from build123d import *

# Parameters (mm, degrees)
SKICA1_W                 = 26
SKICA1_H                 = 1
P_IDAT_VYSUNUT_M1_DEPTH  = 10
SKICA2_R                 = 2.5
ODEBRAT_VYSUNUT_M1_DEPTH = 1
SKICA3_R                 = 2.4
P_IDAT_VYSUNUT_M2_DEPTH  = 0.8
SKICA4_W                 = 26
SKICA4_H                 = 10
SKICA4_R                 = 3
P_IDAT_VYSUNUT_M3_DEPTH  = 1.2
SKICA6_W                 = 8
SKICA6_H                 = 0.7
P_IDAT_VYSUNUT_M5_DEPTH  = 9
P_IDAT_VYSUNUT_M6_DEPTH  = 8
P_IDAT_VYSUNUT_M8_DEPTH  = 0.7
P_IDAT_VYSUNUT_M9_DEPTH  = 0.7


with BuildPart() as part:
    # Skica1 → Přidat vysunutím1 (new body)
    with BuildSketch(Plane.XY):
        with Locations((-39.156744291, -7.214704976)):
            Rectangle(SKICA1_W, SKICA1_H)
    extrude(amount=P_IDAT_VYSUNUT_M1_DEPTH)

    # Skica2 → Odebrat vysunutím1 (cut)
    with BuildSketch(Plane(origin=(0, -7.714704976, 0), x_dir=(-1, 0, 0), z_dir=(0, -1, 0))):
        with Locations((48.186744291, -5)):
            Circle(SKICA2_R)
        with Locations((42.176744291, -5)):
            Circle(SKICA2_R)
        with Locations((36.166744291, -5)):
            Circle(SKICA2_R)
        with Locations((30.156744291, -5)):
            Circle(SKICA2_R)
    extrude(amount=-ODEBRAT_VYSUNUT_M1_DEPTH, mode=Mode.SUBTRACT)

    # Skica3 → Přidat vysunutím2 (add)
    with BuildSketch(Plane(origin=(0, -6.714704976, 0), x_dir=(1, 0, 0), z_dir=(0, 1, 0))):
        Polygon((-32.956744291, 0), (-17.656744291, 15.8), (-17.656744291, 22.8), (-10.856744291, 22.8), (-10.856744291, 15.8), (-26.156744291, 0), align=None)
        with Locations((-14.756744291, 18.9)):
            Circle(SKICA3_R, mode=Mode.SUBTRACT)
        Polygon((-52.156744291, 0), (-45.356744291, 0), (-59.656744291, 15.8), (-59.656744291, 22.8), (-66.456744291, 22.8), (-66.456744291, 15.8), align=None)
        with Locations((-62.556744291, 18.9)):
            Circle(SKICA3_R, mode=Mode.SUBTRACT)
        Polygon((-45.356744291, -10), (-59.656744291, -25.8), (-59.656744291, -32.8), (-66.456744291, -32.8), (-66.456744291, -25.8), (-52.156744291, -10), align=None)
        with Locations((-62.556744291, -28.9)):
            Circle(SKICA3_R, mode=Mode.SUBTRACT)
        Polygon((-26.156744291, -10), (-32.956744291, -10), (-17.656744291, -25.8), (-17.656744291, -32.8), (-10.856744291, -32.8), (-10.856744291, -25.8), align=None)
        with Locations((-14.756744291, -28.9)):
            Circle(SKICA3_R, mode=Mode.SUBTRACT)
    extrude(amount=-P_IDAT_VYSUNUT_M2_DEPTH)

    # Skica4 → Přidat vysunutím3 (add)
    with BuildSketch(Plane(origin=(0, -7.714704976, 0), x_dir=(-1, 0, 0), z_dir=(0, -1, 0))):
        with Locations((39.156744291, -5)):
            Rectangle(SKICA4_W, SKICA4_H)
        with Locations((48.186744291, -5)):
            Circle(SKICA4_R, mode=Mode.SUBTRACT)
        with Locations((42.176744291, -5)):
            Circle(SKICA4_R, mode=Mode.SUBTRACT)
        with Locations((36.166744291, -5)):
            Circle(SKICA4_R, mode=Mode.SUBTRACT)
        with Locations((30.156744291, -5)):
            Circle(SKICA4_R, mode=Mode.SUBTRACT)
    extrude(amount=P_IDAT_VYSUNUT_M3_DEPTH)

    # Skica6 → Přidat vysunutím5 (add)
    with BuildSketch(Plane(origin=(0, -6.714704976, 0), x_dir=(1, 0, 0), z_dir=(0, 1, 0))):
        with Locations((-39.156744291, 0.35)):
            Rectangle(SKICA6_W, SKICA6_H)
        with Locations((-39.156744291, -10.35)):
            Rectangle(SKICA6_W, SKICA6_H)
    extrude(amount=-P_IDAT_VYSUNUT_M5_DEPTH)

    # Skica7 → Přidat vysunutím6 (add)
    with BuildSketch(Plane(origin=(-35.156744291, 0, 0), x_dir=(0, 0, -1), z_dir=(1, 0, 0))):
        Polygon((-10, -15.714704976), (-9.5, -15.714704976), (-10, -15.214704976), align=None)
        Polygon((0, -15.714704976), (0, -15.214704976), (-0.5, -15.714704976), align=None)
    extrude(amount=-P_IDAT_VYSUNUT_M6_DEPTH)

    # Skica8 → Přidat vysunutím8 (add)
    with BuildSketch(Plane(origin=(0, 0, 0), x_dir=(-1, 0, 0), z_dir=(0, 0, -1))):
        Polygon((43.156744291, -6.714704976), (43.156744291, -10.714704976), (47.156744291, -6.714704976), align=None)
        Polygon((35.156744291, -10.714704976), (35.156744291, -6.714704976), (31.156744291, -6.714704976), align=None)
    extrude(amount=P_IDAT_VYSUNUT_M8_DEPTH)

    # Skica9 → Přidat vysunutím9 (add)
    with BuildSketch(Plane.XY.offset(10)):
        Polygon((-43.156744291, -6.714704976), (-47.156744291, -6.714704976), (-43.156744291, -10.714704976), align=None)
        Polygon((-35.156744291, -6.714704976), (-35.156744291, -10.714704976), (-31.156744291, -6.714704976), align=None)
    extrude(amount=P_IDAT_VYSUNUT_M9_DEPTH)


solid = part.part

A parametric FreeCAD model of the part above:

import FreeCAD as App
import Part
import Sketcher
Q = App.Units.Quantity


def add_polygon(sketch, points):
    """Adds a closed chain of lines whose ends are joined by coincident constraints."""
    first, n = sketch.GeometryCount, len(points)
    for a, b in zip(points, points[1:] + points[:1]):
        sketch.addGeometry(Part.LineSegment(App.Vector(*a, 0), App.Vector(*b, 0)), False)
    for i in range(n):
        sketch.addConstraint(Sketcher.Constraint("Coincident", first + i, 2, first + (i + 1) % n, 1))

doc = App.newDocument("Part")
body = doc.addObject("PartDesign::Body", "Body")

sketch1 = doc.addObject("Sketcher::SketchObject", "Sketch")
body.addObject(sketch1)
sketch1.AttachmentSupport = (doc.XY_Plane, [""])
sketch1.MapMode = "FlatFace"
add_polygon(sketch1, [(-52.2, -6.7), (-52.2, -7.7), (-26.2, -7.7), (-26.2, -6.7)])
sketch1.addConstraint([
    Sketcher.Constraint("Vertical", 0),
    Sketcher.Constraint("Horizontal", 1),
    Sketcher.Constraint("Vertical", 2),
    Sketcher.Constraint("Horizontal", 3),
    Sketcher.Constraint("DistanceX", 1, 1, 1, 2, Q("26 mm")),
    Sketcher.Constraint("DistanceY", 0, 2, 0, 1, Q("1 mm")),
    Sketcher.Constraint("DistanceX", 0, 2, -1, 1, Q("52.156744 mm")),
    Sketcher.Constraint("DistanceY", 0, 2, -1, 1, Q("7.714705 mm")),
])
pad1 = doc.addObject("PartDesign::Pad", "Pad")
body.addObject(pad1)
pad1.Profile = sketch1
pad1.Length = 10

sketch2 = doc.addObject("Sketcher::SketchObject", "Sketch001")
body.addObject(sketch2)
sketch2.AttachmentSupport = (doc.XZ_Plane, [""])
sketch2.MapMode = "FlatFace"
sketch2.AttachmentOffset = App.Placement(App.Vector(0, 0, 7.714705), App.Rotation())
sketch2.addGeometry([
    Part.Circle(App.Vector(-48.2, 5, 0), App.Vector(0, 0, 1), 2.5),
    Part.Circle(App.Vector(-42.2, 5, 0), App.Vector(0, 0, 1), 2.5),
    Part.Circle(App.Vector(-36.2, 5, 0), App.Vector(0, 0, 1), 2.5),
    Part.Circle(App.Vector(-30.2, 5, 0), App.Vector(0, 0, 1), 2.5),
], False)
sketch2.addConstraint([
    Sketcher.Constraint("Equal", 0, 1),
    Sketcher.Constraint("Equal", 1, 2),
    Sketcher.Constraint("Equal", 2, 3),
    Sketcher.Constraint("Horizontal", 0, 3, 1, 3),
    Sketcher.Constraint("Horizontal", 1, 3, 2, 3),
    Sketcher.Constraint("Horizontal", 2, 3, 3, 3),
    Sketcher.Constraint("Diameter", 0, Q("5 mm")),
    Sketcher.Constraint("DistanceY", -1, 1, 0, 3, Q("5 mm")),
    Sketcher.Constraint("DistanceX", 0, 3, 1, 3, Q("6.01 mm")),
    Sketcher.Constraint("DistanceX", 1, 3, 2, 3, Q("6.01 mm")),
    Sketcher.Constraint("DistanceX", 2, 3, 3, 3, Q("6.01 mm")),
    Sketcher.Constraint("DistanceX", 0, 3, -1, 1, Q("48.186744 mm")),
])
pocket1 = doc.addObject("PartDesign::Pocket", "Pocket")
body.addObject(pocket1)
pocket1.Profile = sketch2
pocket1.Length = 1

sketch3 = doc.addObject("Sketcher::SketchObject", "Sketch002")
body.addObject(sketch3)
sketch3.AttachmentSupport = (doc.XZ_Plane, [""])
sketch3.MapMode = "FlatFace"
sketch3.AttachmentOffset = App.Placement(App.Vector(0, 0, 6.714705), App.Rotation())
add_polygon(sketch3, [(-17.7, -15.8), (-33, 0), (-26.2, 0), (-10.9, -15.8), (-10.9, -22.8), (-17.7, -22.8)])
sketch3.addGeometry(Part.Circle(App.Vector(-14.8, -18.9, 0), App.Vector(0, 0, 1), 2.4), False)
add_polygon(sketch3, [(-52.2, 0), (-45.4, 0), (-59.7, -15.8), (-59.7, -22.8), (-66.5, -22.8), (-66.5, -15.8)])
sketch3.addGeometry(Part.Circle(App.Vector(-62.6, -18.9, 0), App.Vector(0, 0, 1), 2.4), False)
add_polygon(sketch3, [(-59.7, 25.8), (-45.4, 10), (-52.2, 10), (-66.5, 25.8), (-66.5, 32.8), (-59.7, 32.8)])
sketch3.addGeometry(Part.Circle(App.Vector(-62.6, 28.9, 0), App.Vector(0, 0, 1), 2.4), False)
add_polygon(sketch3, [(-26.2, 10), (-33, 10), (-17.7, 25.8), (-17.7, 32.8), (-10.9, 32.8), (-10.9, 25.8)])
sketch3.addGeometry(Part.Circle(App.Vector(-14.8, 28.9, 0), App.Vector(0, 0, 1), 2.4), False)
sketch3.addConstraint([
    Sketcher.Constraint("Horizontal", 1),
    Sketcher.Constraint("Vertical", 3),
    Sketcher.Constraint("Horizontal", 4),
    Sketcher.Constraint("Vertical", 5),
    Sketcher.Constraint("Horizontal", 7),
    Sketcher.Constraint("Vertical", 9),
    Sketcher.Constraint("Horizontal", 10),
    Sketcher.Constraint("Vertical", 11),
    Sketcher.Constraint("Horizontal", 15),
    Sketcher.Constraint("Vertical", 17),
    Sketcher.Constraint("Horizontal", 18),
    Sketcher.Constraint("Vertical", 19),
    Sketcher.Constraint("Horizontal", 21),
    Sketcher.Constraint("Vertical", 23),
    Sketcher.Constraint("Horizontal", 24),
    Sketcher.Constraint("Vertical", 25),
    Sketcher.Constraint("Equal", 6, 13),
    Sketcher.Constraint("Equal", 13, 20),
    Sketcher.Constraint("Equal", 20, 27),
    Sketcher.Constraint("PointOnObject", 0, 2, -1),
    Sketcher.Constraint("PointOnObject", 7, 2, -1),
    Sketcher.Constraint("Parallel", 0, 2),
    Sketcher.Constraint("Parallel", 8, 12),
    Sketcher.Constraint("Parallel", 14, 16),
    Sketcher.Constraint("Parallel", 22, 26),
    Sketcher.Constraint("Horizontal", 6, 3, 13, 3),
    Sketcher.Constraint("Horizontal", 20, 3, 27, 3),
    Sketcher.Constraint("Horizontal", 2, 2, 5, 2),
    Sketcher.Constraint("Horizontal", 5, 2, 8, 2),
    Sketcher.Constraint("Horizontal", 4, 2, 9, 2),
    Sketcher.Constraint("Horizontal", 8, 2, 11, 2),
    Sketcher.Constraint("Horizontal", 16, 2, 19, 2),
    Sketcher.Constraint("Horizontal", 15, 2, 21, 2),
    Sketcher.Constraint("Horizontal", 19, 2, 22, 2),
    Sketcher.Constraint("Horizontal", 18, 2, 23, 2),
    Sketcher.Constraint("Horizontal", 22, 2, 25, 2),
    Sketcher.Constraint("Vertical", 13, 3, 20, 3),
    Sketcher.Constraint("Vertical", 6, 3, 27, 3),
    Sketcher.Constraint("Vertical", 7, 2, 14, 2),
    Sketcher.Constraint("Vertical", 12, 2, 15, 2),
    Sketcher.Constraint("Vertical", 11, 2, 16, 2),
    Sketcher.Constraint("Vertical", 0, 2, 21, 2),
    Sketcher.Constraint("Vertical", 5, 2, 22, 2),
    Sketcher.Constraint("Vertical", 3, 2, 24, 2),
    Sketcher.Constraint("Equal", 4, 7),
    Sketcher.Constraint("Equal", 11, 17),
    Sketcher.Constraint("Equal", 12, 14),
    Sketcher.Constraint("Diameter", 6, Q("4.8 mm")),
    Sketcher.Constraint("DistanceY", 3, 2, 3, 1, Q("7 mm")),
    Sketcher.Constraint("DistanceX", 1, 1, 1, 2, Q("6.8 mm")),
    Sketcher.Constraint("DistanceY", -1, 1, 14, 2, Q("10 mm")),
    Sketcher.Constraint("DistanceX", 8, 2, 5, 2, Q("42 mm")),
    Sketcher.Constraint("DistanceY", 6, 3, -1, 1, Q("18.9 mm")),
    Sketcher.Constraint("DistanceY", -1, 1, 20, 3, Q("28.9 mm")),
    Sketcher.Constraint("DistanceY", 2, 2, -1, 1, Q("15.8 mm")),
    Sketcher.Constraint("DistanceX", 13, 3, 6, 3, Q("47.8 mm")),
    Sketcher.Constraint("DistanceX", 0, 2, 6, 3, Q("18.2 mm")),
    Sketcher.Constraint("DistanceX", 6, 3, 2, 2, Q("3.9 mm")),
    Sketcher.Constraint("DistanceX", 7, 2, 0, 2, Q("12.4 mm")),
    Sketcher.Constraint("DistanceX", 6, 3, -1, 1, Q("14.756744 mm")),
])
pad2 = doc.addObject("PartDesign::Pad", "Pad001")
body.addObject(pad2)
pad2.Profile = sketch3
pad2.Length = 0.8

sketch4 = doc.addObject("Sketcher::SketchObject", "Sketch003")
body.addObject(sketch4)
sketch4.AttachmentSupport = (doc.XZ_Plane, [""])
sketch4.MapMode = "FlatFace"
sketch4.AttachmentOffset = App.Placement(App.Vector(0, 0, 7.714705), App.Rotation())
add_polygon(sketch4, [(-26.2, 0), (-26.2, 10), (-52.2, 10), (-52.2, 0)])
sketch4.addGeometry(Part.Circle(App.Vector(-30.2, 5, 0), App.Vector(0, 0, 1), 3), False)
sketch4.addGeometry(Part.Circle(App.Vector(-36.2, 5, 0), App.Vector(0, 0, 1), 3), False)
sketch4.addGeometry(Part.Circle(App.Vector(-42.2, 5, 0), App.Vector(0, 0, 1), 3), False)
sketch4.addGeometry(Part.Circle(App.Vector(-48.2, 5, 0), App.Vector(0, 0, 1), 3), False)
sketch4.addConstraint([
    Sketcher.Constraint("Vertical", 0),
    Sketcher.Constraint("Horizontal", 1),
    Sketcher.Constraint("Vertical", 2),
    Sketcher.Constraint("Horizontal", 3),
    Sketcher.Constraint("Equal", 4, 5),
    Sketcher.Constraint("Equal", 5, 6),
    Sketcher.Constraint("Equal", 6, 7),
    Sketcher.Constraint("PointOnObject", 2, 2, -1),
    Sketcher.Constraint("Horizontal", 4, 3, 5, 3),
    Sketcher.Constraint("Horizontal", 5, 3, 6, 3),
    Sketcher.Constraint("Horizontal", 6, 3, 7, 3),
    Sketcher.Constraint("Diameter", 4, Q("6 mm")),
    Sketcher.Constraint("DistanceX", 1, 2, 1, 1, Q("26 mm")),
    Sketcher.Constraint("DistanceY", 0, 1, 0, 2, Q("10 mm")),
    Sketcher.Constraint("DistanceY", -1, 1, 4, 3, Q("5 mm")),
    Sketcher.Constraint("DistanceX", 4, 3, 0, 2, Q("4 mm")),
    Sketcher.Constraint("DistanceX", 5, 3, 4, 3, Q("6.01 mm")),
    Sketcher.Constraint("DistanceX", 6, 3, 5, 3, Q("6.01 mm")),
    Sketcher.Constraint("DistanceX", 7, 3, 6, 3, Q("6.01 mm")),
    Sketcher.Constraint("DistanceX", 4, 3, -1, 1, Q("30.156744 mm")),
])
pad3 = doc.addObject("PartDesign::Pad", "Pad002")
body.addObject(pad3)
pad3.Profile = sketch4
pad3.Length = 1.2

sketch5 = doc.addObject("Sketcher::SketchObject", "Sketch004")
body.addObject(sketch5)
sketch5.AttachmentSupport = (doc.XZ_Plane, [""])
sketch5.MapMode = "FlatFace"
sketch5.AttachmentOffset = App.Placement(App.Vector(0, 0, 6.714705), App.Rotation())
add_polygon(sketch5, [(-43.2, -0.7), (-43.2, 0), (-35.2, 0), (-35.2, -0.7)])
add_polygon(sketch5, [(-43.2, 10), (-43.2, 10.7), (-35.2, 10.7), (-35.2, 10)])
sketch5.addConstraint([
    Sketcher.Constraint("Vertical", 0),
    Sketcher.Constraint("Horizontal", 1),
    Sketcher.Constraint("Vertical", 2),
    Sketcher.Constraint("Horizontal", 3),
    Sketcher.Constraint("Vertical", 4),
    Sketcher.Constraint("Horizontal", 5),
    Sketcher.Constraint("Vertical", 6),
    Sketcher.Constraint("Horizontal", 7),
    Sketcher.Constraint("PointOnObject", 0, 2, -1),
    Sketcher.Constraint("Vertical", 3, 2, 4, 2),
    Sketcher.Constraint("Vertical", 2, 2, 5, 2),
    Sketcher.Constraint("Equal", 2, 4),
    Sketcher.Constraint("DistanceX", 1, 1, 1, 2, Q("8 mm")),
    Sketcher.Constraint("DistanceY", 0, 1, 0, 2, Q("0.7 mm")),
    Sketcher.Constraint("DistanceY", -1, 1, 6, 2, Q("10 mm")),
    Sketcher.Constraint("DistanceX", 0, 2, -1, 1, Q("43.156744 mm")),
])
pad4 = doc.addObject("PartDesign::Pad", "Pad003")
body.addObject(pad4)
pad4.Profile = sketch5
pad4.Length = 9

sketch6 = doc.addObject("Sketcher::SketchObject", "Sketch005")
body.addObject(sketch6)
sketch6.AttachmentSupport = (doc.YZ_Plane, [""])
sketch6.MapMode = "FlatFace"
sketch6.AttachmentOffset = App.Placement(App.Vector(0, 0, -35.156744), App.Rotation())
add_polygon(sketch6, [(-15.7, 10), (-15.7, 9.5), (-15.2, 10)])
add_polygon(sketch6, [(-15.7, 0), (-15.2, 0), (-15.7, 0.5)])
sketch6.addConstraint([
    Sketcher.Constraint("Vertical", 0),
    Sketcher.Constraint("Horizontal", 2),
    Sketcher.Constraint("Horizontal", 3),
    Sketcher.Constraint("Vertical", 5),
    Sketcher.Constraint("PointOnObject", 3, 2, -1),
    Sketcher.Constraint("Perpendicular", 1, 4),
    Sketcher.Constraint("Vertical", 1, 2, 3, 2),
    Sketcher.Constraint("Vertical", 2, 2, 4, 2),
    Sketcher.Constraint("Equal", 3, 0),
    Sketcher.Constraint("DistanceX", 2, 2, 2, 1, Q("0.5 mm")),
    Sketcher.Constraint("DistanceY", -1, 1, 1, 2, Q("10 mm")),
    Sketcher.Constraint("DistanceX", 0, 2, -1, 1, Q("15.714705 mm")),
])
pad5 = doc.addObject("PartDesign::Pad", "Pad004")
body.addObject(pad5)
pad5.Profile = sketch6
pad5.Length = 8
pad5.Reversed = True

sketch7 = doc.addObject("Sketcher::SketchObject", "Sketch006")
body.addObject(sketch7)
sketch7.AttachmentSupport = (doc.XY_Plane, [""])
sketch7.MapMode = "FlatFace"
add_polygon(sketch7, [(-43.2, -6.7), (-43.2, -10.7), (-47.2, -6.7)])
add_polygon(sketch7, [(-35.2, -10.7), (-35.2, -6.7), (-31.2, -6.7)])
sketch7.addConstraint([
    Sketcher.Constraint("Vertical", 0),
    Sketcher.Constraint("Horizontal", 2),
    Sketcher.Constraint("Vertical", 3),
    Sketcher.Constraint("Horizontal", 4),
    Sketcher.Constraint("Perpendicular", 1, 5),
    Sketcher.Constraint("Horizontal", 2, 2, 3, 2),
    Sketcher.Constraint("Horizontal", 0, 2, 5, 2),
    Sketcher.Constraint("Equal", 2, 4),
    Sketcher.Constraint("DistanceX", 2, 1, 2, 2, Q("4 mm")),
    Sketcher.Constraint("DistanceX", 2, 2, 3, 2, Q("8 mm")),
    Sketcher.Constraint("DistanceX", 0, 2, -1, 1, Q("43.156744 mm")),
    Sketcher.Constraint("DistanceY", 0, 2, -1, 1, Q("10.714705 mm")),
])
pad6 = doc.addObject("PartDesign::Pad", "Pad005")
body.addObject(pad6)
pad6.Profile = sketch7
pad6.Length = 0.7
pad6.Reversed = True

sketch8 = doc.addObject("Sketcher::SketchObject", "Sketch007")
body.addObject(sketch8)
sketch8.AttachmentSupport = (doc.XY_Plane, [""])
sketch8.MapMode = "FlatFace"
sketch8.AttachmentOffset = App.Placement(App.Vector(0, 0, 10), App.Rotation())
add_polygon(sketch8, [(-43.2, -6.7), (-47.2, -6.7), (-43.2, -10.7)])
add_polygon(sketch8, [(-35.2, -6.7), (-35.2, -10.7), (-31.2, -6.7)])
sketch8.addConstraint([
    Sketcher.Constraint("Horizontal", 0),
    Sketcher.Constraint("Vertical", 2),
    Sketcher.Constraint("Vertical", 3),
    Sketcher.Constraint("Horizontal", 5),
    Sketcher.Constraint("Perpendicular", 1, 4),
    Sketcher.Constraint("Horizontal", 1, 2, 3, 2),
    Sketcher.Constraint("Horizontal", 2, 2, 4, 2),
    Sketcher.Constraint("Equal", 0, 5),
    Sketcher.Constraint("DistanceX", 0, 2, 0, 1, Q("4 mm")),
    Sketcher.Constraint("DistanceX", 1, 2, 3, 2, Q("8 mm")),
    Sketcher.Constraint("DistanceX", 0, 2, -1, 1, Q("47.156744 mm")),
    Sketcher.Constraint("DistanceY", 0, 2, -1, 1, Q("6.714705 mm")),
])
pad7 = doc.addObject("PartDesign::Pad", "Pad006")
body.addObject(pad7)
pad7.Profile = sketch8
pad7.Length = 0.7

doc.recompute()
